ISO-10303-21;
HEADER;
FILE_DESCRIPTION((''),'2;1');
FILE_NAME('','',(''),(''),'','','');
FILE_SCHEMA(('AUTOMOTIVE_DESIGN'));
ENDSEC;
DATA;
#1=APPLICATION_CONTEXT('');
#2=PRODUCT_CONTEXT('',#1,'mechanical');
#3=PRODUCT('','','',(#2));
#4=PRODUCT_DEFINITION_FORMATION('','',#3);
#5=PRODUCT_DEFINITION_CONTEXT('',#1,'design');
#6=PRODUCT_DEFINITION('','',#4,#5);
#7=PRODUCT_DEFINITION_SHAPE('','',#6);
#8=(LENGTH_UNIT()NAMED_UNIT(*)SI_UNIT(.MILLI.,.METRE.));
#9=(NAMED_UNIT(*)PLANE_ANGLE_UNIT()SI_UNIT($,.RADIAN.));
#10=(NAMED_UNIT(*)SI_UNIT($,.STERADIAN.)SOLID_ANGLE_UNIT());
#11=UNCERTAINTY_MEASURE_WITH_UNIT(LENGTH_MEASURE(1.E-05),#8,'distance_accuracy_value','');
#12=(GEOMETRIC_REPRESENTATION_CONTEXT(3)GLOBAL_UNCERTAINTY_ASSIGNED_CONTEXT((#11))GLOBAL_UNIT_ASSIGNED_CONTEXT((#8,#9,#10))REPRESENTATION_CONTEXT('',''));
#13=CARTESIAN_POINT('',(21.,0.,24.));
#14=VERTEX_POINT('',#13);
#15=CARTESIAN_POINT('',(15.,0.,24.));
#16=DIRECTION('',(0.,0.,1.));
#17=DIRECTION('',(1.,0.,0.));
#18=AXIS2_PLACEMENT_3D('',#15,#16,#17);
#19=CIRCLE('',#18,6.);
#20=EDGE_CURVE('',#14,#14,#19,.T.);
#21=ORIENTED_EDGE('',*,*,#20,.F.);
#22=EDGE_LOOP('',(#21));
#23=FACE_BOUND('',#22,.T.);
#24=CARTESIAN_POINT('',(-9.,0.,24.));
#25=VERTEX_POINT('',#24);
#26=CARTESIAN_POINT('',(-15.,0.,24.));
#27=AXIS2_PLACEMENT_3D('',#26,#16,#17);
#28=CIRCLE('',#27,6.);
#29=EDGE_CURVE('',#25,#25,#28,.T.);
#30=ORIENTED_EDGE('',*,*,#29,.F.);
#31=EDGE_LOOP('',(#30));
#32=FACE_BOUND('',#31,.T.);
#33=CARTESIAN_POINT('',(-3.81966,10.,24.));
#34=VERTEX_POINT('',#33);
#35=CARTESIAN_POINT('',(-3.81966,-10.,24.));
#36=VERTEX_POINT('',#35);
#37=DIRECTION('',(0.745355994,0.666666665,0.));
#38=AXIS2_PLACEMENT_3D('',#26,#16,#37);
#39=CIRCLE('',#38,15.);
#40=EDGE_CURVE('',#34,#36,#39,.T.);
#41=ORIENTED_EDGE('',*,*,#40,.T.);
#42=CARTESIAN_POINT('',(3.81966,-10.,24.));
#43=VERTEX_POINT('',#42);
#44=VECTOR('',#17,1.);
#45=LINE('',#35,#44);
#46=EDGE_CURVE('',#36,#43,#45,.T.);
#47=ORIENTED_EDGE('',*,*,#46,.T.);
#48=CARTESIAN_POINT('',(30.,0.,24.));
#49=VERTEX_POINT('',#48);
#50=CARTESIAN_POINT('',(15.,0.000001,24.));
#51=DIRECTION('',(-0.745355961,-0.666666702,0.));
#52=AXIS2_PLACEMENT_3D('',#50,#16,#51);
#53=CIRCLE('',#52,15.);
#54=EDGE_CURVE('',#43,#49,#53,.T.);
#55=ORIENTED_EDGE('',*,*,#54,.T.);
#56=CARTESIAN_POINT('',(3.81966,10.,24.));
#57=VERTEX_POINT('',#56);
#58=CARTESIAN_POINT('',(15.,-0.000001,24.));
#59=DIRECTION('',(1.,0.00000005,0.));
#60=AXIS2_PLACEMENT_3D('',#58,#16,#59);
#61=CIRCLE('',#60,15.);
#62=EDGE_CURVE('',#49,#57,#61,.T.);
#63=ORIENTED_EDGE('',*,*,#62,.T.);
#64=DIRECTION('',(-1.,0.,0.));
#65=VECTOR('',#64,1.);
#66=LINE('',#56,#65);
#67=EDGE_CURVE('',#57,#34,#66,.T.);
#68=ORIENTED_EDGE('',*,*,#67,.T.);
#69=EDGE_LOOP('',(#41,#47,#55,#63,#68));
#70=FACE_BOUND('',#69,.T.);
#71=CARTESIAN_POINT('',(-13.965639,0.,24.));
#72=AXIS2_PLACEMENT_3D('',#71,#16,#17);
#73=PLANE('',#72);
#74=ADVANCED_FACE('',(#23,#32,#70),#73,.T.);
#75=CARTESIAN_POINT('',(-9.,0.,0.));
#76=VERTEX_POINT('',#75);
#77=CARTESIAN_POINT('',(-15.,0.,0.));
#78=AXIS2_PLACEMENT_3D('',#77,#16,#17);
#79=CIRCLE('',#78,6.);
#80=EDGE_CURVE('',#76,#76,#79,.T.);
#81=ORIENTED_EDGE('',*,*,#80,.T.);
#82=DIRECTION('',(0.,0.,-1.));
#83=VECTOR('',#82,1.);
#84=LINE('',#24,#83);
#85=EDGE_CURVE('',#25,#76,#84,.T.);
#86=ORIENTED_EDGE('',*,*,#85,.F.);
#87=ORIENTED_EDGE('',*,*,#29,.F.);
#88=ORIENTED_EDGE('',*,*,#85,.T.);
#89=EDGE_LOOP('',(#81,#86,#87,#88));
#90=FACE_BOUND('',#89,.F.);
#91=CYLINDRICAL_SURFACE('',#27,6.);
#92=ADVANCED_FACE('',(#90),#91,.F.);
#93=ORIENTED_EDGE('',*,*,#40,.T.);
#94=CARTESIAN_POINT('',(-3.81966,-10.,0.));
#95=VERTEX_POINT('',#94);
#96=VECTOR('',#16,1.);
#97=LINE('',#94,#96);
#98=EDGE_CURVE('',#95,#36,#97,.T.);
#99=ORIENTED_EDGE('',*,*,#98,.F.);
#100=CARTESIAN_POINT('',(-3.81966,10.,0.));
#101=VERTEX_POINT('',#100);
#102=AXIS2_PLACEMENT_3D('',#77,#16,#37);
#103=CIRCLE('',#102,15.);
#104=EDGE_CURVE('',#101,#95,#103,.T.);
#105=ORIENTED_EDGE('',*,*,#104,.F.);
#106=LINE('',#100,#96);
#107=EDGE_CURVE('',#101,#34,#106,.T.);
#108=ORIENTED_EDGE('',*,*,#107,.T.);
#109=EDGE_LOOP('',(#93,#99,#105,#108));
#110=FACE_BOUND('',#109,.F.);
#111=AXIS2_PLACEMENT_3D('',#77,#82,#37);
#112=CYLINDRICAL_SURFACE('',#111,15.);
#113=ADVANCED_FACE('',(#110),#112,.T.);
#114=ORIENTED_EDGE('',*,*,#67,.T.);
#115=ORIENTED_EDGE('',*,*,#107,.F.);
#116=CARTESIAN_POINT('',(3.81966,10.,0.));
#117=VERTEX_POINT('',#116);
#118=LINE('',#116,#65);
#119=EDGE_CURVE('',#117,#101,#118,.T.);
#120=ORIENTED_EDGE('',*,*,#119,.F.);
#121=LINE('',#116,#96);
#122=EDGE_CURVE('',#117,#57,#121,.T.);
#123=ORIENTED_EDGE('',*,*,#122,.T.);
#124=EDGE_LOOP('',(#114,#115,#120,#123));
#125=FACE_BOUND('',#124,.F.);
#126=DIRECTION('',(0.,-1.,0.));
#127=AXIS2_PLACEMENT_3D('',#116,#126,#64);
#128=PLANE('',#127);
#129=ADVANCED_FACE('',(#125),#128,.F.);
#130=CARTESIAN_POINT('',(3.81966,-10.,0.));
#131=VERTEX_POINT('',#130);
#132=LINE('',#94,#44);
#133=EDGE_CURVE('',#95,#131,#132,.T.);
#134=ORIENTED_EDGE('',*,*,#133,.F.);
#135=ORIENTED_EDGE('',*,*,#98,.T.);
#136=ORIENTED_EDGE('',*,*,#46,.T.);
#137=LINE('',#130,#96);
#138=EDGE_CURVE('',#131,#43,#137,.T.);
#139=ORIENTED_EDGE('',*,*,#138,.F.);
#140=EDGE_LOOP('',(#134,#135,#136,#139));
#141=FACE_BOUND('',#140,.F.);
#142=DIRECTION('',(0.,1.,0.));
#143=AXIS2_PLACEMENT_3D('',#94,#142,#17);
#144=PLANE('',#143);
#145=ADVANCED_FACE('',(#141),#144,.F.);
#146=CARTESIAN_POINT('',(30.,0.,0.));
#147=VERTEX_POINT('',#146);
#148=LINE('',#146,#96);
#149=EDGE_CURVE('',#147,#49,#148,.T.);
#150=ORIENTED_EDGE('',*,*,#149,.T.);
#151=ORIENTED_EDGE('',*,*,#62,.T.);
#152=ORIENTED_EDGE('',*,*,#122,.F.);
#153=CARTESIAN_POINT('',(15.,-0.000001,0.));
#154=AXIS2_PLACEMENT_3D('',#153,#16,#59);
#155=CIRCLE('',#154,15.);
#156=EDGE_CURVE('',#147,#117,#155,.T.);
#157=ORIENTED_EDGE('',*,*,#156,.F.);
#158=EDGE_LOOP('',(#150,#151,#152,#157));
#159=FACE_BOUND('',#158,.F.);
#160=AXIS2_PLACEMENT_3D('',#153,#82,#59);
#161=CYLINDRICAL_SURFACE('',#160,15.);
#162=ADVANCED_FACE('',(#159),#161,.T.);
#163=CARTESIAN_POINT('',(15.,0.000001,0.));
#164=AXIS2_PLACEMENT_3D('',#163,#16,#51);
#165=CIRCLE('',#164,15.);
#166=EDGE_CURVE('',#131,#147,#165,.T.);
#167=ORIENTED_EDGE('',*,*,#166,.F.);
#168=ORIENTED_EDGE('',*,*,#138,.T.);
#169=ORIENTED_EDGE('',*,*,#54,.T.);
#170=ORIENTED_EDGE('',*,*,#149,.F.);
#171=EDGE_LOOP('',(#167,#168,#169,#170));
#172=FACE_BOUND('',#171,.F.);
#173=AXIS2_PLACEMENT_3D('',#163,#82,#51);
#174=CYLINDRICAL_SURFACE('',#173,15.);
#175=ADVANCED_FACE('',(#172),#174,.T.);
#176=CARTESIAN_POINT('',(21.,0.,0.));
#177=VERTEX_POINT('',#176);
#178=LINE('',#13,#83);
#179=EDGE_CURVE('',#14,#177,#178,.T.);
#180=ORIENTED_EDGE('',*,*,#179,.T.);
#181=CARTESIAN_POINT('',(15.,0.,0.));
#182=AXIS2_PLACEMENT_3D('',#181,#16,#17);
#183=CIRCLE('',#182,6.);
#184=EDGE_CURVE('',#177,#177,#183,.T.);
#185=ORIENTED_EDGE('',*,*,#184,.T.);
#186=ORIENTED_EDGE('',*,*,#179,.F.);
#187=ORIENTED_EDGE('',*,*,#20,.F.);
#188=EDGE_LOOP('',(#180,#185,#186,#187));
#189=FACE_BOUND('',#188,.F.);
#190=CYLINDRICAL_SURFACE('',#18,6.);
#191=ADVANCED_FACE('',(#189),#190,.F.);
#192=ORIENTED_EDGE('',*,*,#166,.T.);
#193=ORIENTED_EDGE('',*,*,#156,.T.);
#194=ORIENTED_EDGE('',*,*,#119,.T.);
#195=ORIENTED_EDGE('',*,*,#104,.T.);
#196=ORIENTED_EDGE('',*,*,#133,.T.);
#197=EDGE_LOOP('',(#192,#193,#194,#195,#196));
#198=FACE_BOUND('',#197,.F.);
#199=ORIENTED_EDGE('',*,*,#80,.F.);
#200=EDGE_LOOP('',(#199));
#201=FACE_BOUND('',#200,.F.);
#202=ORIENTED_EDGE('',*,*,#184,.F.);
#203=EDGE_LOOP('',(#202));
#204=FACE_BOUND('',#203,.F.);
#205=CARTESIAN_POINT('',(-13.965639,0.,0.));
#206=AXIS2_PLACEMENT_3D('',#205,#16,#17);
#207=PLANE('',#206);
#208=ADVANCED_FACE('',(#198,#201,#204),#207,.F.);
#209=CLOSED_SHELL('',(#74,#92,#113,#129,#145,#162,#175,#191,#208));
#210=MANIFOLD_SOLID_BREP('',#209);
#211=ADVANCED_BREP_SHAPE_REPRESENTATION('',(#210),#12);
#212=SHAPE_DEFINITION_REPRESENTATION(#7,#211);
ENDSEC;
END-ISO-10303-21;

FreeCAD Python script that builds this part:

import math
import FreeCAD as App
import Part
import Sketcher

V = App.Vector

doc = App.newDocument("Part")
body = doc.addObject("PartDesign::Body", "Body")

# Sketch on XY plane
sketch1 = body.newObject("Sketcher::SketchObject", "Sketch")
sketch1.AttachmentSupport = (doc.getObject("XY_Plane"), [""])
sketch1.MapMode = "FlatFace"
sketch1.addGeometry(Part.ArcOfCircle(Part.Circle(V(-15, 0, 0), V(0, 0, 1), 15), math.radians(42), math.radians(318)), False)
sketch1.addGeometry(Part.LineSegment(V(-4, -10, 0), V(4, -10, 0)), False)
sketch1.addGeometry(Part.ArcOfCircle(Part.Circle(V(15, 0, 0), V(0, 0, 1), 15), math.radians(-138), math.radians(0)), False)
sketch1.addGeometry(Part.ArcOfCircle(Part.Circle(V(15, 0, 0), V(0, 0, 1), 15), math.radians(0), math.radians(138)), False)
sketch1.addGeometry(Part.LineSegment(V(4, 10, 0), V(-4, 10, 0)), False)
sketch1.addConstraint(Sketcher.Constraint("Coincident", 0, 2, 1, 1))
sketch1.addConstraint(Sketcher.Constraint("Coincident", 1, 2, 2, 1))
sketch1.addConstraint(Sketcher.Constraint("Tangent", 2, 2, 3, 1))
sketch1.addConstraint(Sketcher.Constraint("Coincident", 3, 2, 4, 1))
sketch1.addConstraint(Sketcher.Constraint("Coincident", 4, 2, 0, 1))
sketch1.addConstraint(Sketcher.Constraint("Horizontal", 1))
sketch1.addConstraint(Sketcher.Constraint("Horizontal", 4))
sketch1.addConstraint(Sketcher.Constraint("Equal", 0, 2))
sketch1.addConstraint(Sketcher.Constraint("Equal", 2, 3))
sketch1.addConstraint(Sketcher.Constraint("Symmetric", 0, 3, 2, 3, -1, 1))
sketch1.addConstraint(Sketcher.Constraint("Symmetric", 1, 2, 3, 2, -1))
sketch1.addConstraint(Sketcher.Constraint("PointOnObject", 2, 2, -1))
sketch1.addConstraint(Sketcher.Constraint("Radius", 0, 15.0))
sketch1.addConstraint(Sketcher.Constraint("DistanceX", 0, 3, -1, 1, 15.0))
sketch1.addConstraint(Sketcher.Constraint("DistanceY", 0, 2, -1, 1, 10.0))
pad1 = body.newObject("PartDesign::Pad", "Pad")
pad1.Profile = sketch1
pad1.Length = 24

# Sketch on XY plane
sketch2 = body.newObject("Sketcher::SketchObject", "Sketch001")
sketch2.AttachmentSupport = (doc.getObject("XY_Plane"), [""])
sketch2.MapMode = "FlatFace"
sketch2.AttachmentOffset = App.Placement(V(0, 0, 24), App.Rotation())
sketch2.addGeometry(Part.Circle(V(-15, 0, 0), V(0, 0, 1), 6), False)
sketch2.addGeometry(Part.Circle(V(15, 0, 0), V(0, 0, 1), 6), False)
sketch2.addConstraint(Sketcher.Constraint("Equal", 0, 1))
sketch2.addConstraint(Sketcher.Constraint("Symmetric", 0, 3, 1, 3, -1, 1))
sketch2.addConstraint(Sketcher.Constraint("PointOnObject", 0, 3, -1))
sketch2.addConstraint(Sketcher.Constraint("Diameter", 0, 12.0))
sketch2.addConstraint(Sketcher.Constraint("DistanceX", 0, 3, -1, 1, 15.0))
pocket1 = body.newObject("PartDesign::Pocket", "Pocket")
pocket1.Profile = sketch2
pocket1.Type = "ThroughAll"

doc.recompute()
